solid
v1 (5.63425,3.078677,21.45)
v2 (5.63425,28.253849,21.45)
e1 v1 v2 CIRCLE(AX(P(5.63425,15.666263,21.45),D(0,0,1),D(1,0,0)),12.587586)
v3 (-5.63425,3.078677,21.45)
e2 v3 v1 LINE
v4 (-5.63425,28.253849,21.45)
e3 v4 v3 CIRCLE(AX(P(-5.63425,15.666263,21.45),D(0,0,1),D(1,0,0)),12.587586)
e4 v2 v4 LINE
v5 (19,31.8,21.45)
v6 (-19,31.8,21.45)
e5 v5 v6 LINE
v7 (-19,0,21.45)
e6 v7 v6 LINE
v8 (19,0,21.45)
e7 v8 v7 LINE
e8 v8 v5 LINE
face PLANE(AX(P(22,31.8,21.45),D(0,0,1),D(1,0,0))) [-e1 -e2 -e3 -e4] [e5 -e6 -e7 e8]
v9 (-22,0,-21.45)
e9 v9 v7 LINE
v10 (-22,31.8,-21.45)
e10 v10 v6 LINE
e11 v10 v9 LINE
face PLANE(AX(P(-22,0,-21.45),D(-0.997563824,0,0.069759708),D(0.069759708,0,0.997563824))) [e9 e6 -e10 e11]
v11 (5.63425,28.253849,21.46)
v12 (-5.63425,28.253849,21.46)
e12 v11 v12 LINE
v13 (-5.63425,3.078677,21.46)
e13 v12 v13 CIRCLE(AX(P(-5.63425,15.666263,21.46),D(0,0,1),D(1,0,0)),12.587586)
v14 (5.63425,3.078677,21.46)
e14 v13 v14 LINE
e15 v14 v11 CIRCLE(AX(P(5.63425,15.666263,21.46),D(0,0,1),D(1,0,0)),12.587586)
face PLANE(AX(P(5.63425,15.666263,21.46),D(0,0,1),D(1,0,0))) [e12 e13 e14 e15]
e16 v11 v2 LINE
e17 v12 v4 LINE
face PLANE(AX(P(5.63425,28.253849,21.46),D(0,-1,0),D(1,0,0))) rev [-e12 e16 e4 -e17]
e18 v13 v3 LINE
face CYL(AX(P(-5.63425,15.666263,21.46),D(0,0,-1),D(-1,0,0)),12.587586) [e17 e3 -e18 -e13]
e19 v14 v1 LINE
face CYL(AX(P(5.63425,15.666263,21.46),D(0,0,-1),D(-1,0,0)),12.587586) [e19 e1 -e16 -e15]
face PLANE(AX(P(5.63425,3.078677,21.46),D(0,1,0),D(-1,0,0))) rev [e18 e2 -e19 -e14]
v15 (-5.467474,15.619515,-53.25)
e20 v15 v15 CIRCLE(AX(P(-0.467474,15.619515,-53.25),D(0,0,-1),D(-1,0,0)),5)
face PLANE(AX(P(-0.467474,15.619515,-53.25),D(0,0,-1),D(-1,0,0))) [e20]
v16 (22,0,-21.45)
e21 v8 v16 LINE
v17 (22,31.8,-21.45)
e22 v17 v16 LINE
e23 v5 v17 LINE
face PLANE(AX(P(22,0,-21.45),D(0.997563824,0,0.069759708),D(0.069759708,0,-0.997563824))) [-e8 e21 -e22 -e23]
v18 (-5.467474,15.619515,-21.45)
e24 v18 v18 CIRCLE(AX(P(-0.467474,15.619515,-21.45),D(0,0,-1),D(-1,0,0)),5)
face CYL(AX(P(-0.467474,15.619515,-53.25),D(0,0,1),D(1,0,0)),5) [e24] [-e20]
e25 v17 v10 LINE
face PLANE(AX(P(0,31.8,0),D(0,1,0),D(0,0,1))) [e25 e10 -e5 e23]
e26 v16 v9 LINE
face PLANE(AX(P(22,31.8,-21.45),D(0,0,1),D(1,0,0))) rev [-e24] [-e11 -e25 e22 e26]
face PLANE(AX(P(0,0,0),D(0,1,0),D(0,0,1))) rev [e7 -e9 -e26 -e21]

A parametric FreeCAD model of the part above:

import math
import FreeCAD as App
import Part
import Sketcher


def add_polygon(sketch, points):
    """Adds a closed chain of lines whose ends are joined by coincident constraints."""
    first, n = sketch.GeometryCount, len(points)
    for a, b in zip(points, points[1:] + points[:1]):
        sketch.addGeometry(Part.LineSegment(App.Vector(*a, 0), App.Vector(*b, 0)), False)
    for i in range(n):
        sketch.addConstraint(Sketcher.Constraint("Coincident", first + i, 2, first + (i + 1) % n, 1))

doc = App.newDocument("Part")
body = doc.addObject("PartDesign::Body", "Body")

# Sketch on XZ plane
sketch1 = body.newObject("Sketcher::SketchObject", "Sketch")
sketch1.AttachmentSupport = (doc.getObject("XZ_Plane"), [""])
sketch1.MapMode = "FlatFace"
add_polygon(sketch1, [(-22, -21), (-22, 21), (22, 21), (22, -21)])  # lines 0-3
sketch1.addConstraint([
    Sketcher.Constraint("Vertical", 0),
    Sketcher.Constraint("Horizontal", 1),
    Sketcher.Constraint("Vertical", 2),
    Sketcher.Constraint("Horizontal", 3),
    Sketcher.Constraint("Symmetric", 0, 2, 2, 2, -1, 1),
    Sketcher.Constraint("DistanceX", 1, 1, 1, 2, 44.0),
    Sketcher.Constraint("DistanceY", 0, 1, 0, 2, 42.9),
])
pad1 = body.newObject("PartDesign::Pad", "Pad")
pad1.Profile = sketch1
pad1.Length = 31.8
pad1.Reversed = True

# Sketch on XZ plane
sketch2 = body.newObject("Sketcher::SketchObject", "Sketch001")
sketch2.AttachmentSupport = (doc.getObject("XZ_Plane"), [""])
sketch2.MapMode = "FlatFace"
sketch2.AttachmentOffset = App.Placement(App.Vector(0, 0, -31.8), App.Rotation())
add_polygon(sketch2, [(-30, -29), (-30, 29), (30, 29), (30, -29)])  # lines 0-3
add_polygon(sketch2, [(-19, 21), (-22, -21), (22, -21), (19, 21)])  # lines 4-7
sketch2.addConstraint([
    Sketcher.Constraint("Vertical", 0),
    Sketcher.Constraint("Horizontal", 1),
    Sketcher.Constraint("Vertical", 2),
    Sketcher.Constraint("Horizontal", 3),
    Sketcher.Constraint("Horizontal", 5),
    Sketcher.Constraint("Horizontal", 7),
    Sketcher.Constraint("Symmetric", 0, 2, 2, 2, -1, 1),
    Sketcher.Constraint("Equal", 4, 6),
    Sketcher.Constraint("DistanceX", 5, 1, 5, 2, 44.0),
    Sketcher.Constraint("DistanceX", 7, 2, 7, 1, 38.0),
    Sketcher.Constraint("DistanceX", 4, 2, -1, 1, 22.0),
    Sketcher.Constraint("DistanceY", 5, 2, 6, 2, 42.9),
    Sketcher.Constraint("DistanceX", 1, 1, 1, 2, 59.838),
    Sketcher.Constraint("DistanceY", 0, 1, 0, 2, 58.738),
    Sketcher.Constraint("DistanceY", 4, 2, -1, 1, 21.45),
])
pocket1 = body.newObject("PartDesign::Pocket", "Pocket")
pocket1.Profile = sketch2
pocket1.Length = 31.8
pocket1.Reversed = True

# Sketch on XY plane
sketch3 = body.newObject("Sketcher::SketchObject", "Sketch002")
sketch3.AttachmentSupport = (doc.getObject("XY_Plane"), [""])
sketch3.MapMode = "FlatFace"
sketch3.AttachmentOffset = App.Placement(App.Vector(0, 0, -21.45), App.Rotation())
sketch3.addGeometry(Part.Circle(App.Vector(0, 16, 0), App.Vector(0, 0, 1), 5), False)
sketch3.addConstraint([
    Sketcher.Constraint("Diameter", 0, 10.0),
    Sketcher.Constraint("DistanceX", 0, 3, -1, 1, 0.467474),
    Sketcher.Constraint("DistanceY", -1, 1, 0, 3, 15.619515),
])
pad2 = body.newObject("PartDesign::Pad", "Pad001")
pad2.Profile = sketch3
pad2.Length = 31.8
pad2.Reversed = True

# Sketch on XY plane
sketch4 = body.newObject("Sketcher::SketchObject", "Sketch003")
sketch4.AttachmentSupport = (doc.getObject("XY_Plane"), [""])
sketch4.MapMode = "FlatFace"
sketch4.AttachmentOffset = App.Placement(App.Vector(0, 0, 21.45), App.Rotation())
sketch4.addGeometry([
    Part.LineSegment(App.Vector(-6, 3, 0), App.Vector(6, 3, 0)),
    Part.ArcOfCircle(Part.Circle(App.Vector(6, 16, 0), App.Vector(0, 0, 1), 13), math.radians(-90), math.radians(90)),
    Part.LineSegment(App.Vector(6, 28, 0), App.Vector(-6, 28, 0)),
    Part.ArcOfCircle(Part.Circle(App.Vector(-6, 16, 0), App.Vector(0, 0, 1), 13), math.radians(90), math.radians(270)),
], False)
sketch4.addConstraint([
    Sketcher.Constraint("Tangent", 0, 2, 1, 1),
    Sketcher.Constraint("Tangent", 1, 2, 2, 1),
    Sketcher.Constraint("Tangent", 2, 2, 3, 1),
    Sketcher.Constraint("Tangent", 3, 2, 0, 1),
    Sketcher.Constraint("Horizontal", 0),
    Sketcher.Constraint("Horizontal", 2),
    Sketcher.Constraint("DistanceX", 0, 1, 0, 2, 11.268499),
    Sketcher.Constraint("Radius", 1, 12.587586),
    Sketcher.Constraint("DistanceX", -1, 1, 1, 3, 5.63425),
    Sketcher.Constraint("DistanceY", -1, 1, 1, 2, 28.253849),
])
pad3 = body.newObject("PartDesign::Pad", "Pad002")
pad3.Profile = sketch4
pad3.Length = 0.01

doc.recompute()
